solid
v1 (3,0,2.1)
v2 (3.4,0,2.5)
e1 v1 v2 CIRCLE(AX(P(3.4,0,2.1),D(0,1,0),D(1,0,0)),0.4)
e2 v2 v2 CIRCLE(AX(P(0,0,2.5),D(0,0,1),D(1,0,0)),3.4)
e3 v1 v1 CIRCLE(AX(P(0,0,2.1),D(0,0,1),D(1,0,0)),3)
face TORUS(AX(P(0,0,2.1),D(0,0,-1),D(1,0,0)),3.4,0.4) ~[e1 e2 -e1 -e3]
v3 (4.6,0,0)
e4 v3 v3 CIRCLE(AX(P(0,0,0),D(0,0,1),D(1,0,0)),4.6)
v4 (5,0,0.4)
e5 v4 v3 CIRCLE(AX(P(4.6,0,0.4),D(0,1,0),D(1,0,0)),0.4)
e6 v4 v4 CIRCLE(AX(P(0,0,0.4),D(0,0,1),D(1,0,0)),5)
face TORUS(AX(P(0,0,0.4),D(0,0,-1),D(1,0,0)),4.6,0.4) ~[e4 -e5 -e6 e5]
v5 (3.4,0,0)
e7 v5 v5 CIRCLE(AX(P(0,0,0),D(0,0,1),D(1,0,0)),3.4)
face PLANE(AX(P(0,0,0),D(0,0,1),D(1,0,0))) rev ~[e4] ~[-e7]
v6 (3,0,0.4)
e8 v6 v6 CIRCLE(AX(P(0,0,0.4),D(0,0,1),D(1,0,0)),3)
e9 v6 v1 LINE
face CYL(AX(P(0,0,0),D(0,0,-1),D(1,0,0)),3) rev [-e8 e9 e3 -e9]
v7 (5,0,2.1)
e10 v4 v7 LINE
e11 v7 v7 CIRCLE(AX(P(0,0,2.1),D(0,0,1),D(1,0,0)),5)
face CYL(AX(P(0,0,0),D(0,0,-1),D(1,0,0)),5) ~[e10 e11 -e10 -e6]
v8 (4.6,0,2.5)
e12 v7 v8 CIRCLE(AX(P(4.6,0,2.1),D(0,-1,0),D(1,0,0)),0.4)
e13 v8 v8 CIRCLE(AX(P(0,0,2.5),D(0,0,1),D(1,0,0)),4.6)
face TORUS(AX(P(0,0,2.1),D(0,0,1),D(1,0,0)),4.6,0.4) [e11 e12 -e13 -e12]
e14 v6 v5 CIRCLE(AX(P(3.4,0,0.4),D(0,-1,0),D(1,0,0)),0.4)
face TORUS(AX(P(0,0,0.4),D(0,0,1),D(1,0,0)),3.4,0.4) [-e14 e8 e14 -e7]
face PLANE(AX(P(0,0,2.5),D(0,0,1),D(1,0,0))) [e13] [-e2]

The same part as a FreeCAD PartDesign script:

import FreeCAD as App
import Part
import Sketcher

V = App.Vector
Q = App.Units.Quantity


def edges_at(feature, points):
    """Names of the edges that pass closest to the given points."""
    edges = feature.Shape.Edges
    near = lambda p: min(range(len(edges)), key=lambda i: edges[i].distToShape(Part.Vertex(*p))[0])
    return sorted({f"Edge{near(p) + 1}" for p in points})

doc = App.newDocument("Part")
body = doc.addObject("PartDesign::Body", "Body")

# Sketch on XY plane
sketch1 = body.newObject("Sketcher::SketchObject", "Sketch")
sketch1.AttachmentSupport = (doc.getObject("XY_Plane"), [""])
sketch1.MapMode = "FlatFace"
sketch1.addGeometry(Part.Circle(V(0, 0, 0), V(0, 0, 1), 5), False)
sketch1.addGeometry(Part.Circle(V(0, 0, 0), V(0, 0, 1), 3), False)
sketch1.addConstraint(Sketcher.Constraint("Coincident", 0, 3, -1, 1))
sketch1.addConstraint(Sketcher.Constraint("Coincident", 1, 3, -1, 1))
sketch1.addConstraint(Sketcher.Constraint("Diameter", 0, Q("10 mm")))
sketch1.addConstraint(Sketcher.Constraint("Diameter", 1, Q("6 mm")))
pad1 = body.newObject("PartDesign::Pad", "Pad")
pad1.Profile = sketch1
pad1.Length = 2.5
doc.recompute()

fillet = body.newObject("PartDesign::Fillet", "Fillet")
fillet.Base = (pad1, edges_at(pad1, [
    (-2.797, 1.085, 2.5),
    (-2.797, 1.085, 0),
    (-4.662, -1.808, 2.5),
    (-4.662, -1.808, 0),
]))
fillet.Radius = 0.4

doc.recompute()
